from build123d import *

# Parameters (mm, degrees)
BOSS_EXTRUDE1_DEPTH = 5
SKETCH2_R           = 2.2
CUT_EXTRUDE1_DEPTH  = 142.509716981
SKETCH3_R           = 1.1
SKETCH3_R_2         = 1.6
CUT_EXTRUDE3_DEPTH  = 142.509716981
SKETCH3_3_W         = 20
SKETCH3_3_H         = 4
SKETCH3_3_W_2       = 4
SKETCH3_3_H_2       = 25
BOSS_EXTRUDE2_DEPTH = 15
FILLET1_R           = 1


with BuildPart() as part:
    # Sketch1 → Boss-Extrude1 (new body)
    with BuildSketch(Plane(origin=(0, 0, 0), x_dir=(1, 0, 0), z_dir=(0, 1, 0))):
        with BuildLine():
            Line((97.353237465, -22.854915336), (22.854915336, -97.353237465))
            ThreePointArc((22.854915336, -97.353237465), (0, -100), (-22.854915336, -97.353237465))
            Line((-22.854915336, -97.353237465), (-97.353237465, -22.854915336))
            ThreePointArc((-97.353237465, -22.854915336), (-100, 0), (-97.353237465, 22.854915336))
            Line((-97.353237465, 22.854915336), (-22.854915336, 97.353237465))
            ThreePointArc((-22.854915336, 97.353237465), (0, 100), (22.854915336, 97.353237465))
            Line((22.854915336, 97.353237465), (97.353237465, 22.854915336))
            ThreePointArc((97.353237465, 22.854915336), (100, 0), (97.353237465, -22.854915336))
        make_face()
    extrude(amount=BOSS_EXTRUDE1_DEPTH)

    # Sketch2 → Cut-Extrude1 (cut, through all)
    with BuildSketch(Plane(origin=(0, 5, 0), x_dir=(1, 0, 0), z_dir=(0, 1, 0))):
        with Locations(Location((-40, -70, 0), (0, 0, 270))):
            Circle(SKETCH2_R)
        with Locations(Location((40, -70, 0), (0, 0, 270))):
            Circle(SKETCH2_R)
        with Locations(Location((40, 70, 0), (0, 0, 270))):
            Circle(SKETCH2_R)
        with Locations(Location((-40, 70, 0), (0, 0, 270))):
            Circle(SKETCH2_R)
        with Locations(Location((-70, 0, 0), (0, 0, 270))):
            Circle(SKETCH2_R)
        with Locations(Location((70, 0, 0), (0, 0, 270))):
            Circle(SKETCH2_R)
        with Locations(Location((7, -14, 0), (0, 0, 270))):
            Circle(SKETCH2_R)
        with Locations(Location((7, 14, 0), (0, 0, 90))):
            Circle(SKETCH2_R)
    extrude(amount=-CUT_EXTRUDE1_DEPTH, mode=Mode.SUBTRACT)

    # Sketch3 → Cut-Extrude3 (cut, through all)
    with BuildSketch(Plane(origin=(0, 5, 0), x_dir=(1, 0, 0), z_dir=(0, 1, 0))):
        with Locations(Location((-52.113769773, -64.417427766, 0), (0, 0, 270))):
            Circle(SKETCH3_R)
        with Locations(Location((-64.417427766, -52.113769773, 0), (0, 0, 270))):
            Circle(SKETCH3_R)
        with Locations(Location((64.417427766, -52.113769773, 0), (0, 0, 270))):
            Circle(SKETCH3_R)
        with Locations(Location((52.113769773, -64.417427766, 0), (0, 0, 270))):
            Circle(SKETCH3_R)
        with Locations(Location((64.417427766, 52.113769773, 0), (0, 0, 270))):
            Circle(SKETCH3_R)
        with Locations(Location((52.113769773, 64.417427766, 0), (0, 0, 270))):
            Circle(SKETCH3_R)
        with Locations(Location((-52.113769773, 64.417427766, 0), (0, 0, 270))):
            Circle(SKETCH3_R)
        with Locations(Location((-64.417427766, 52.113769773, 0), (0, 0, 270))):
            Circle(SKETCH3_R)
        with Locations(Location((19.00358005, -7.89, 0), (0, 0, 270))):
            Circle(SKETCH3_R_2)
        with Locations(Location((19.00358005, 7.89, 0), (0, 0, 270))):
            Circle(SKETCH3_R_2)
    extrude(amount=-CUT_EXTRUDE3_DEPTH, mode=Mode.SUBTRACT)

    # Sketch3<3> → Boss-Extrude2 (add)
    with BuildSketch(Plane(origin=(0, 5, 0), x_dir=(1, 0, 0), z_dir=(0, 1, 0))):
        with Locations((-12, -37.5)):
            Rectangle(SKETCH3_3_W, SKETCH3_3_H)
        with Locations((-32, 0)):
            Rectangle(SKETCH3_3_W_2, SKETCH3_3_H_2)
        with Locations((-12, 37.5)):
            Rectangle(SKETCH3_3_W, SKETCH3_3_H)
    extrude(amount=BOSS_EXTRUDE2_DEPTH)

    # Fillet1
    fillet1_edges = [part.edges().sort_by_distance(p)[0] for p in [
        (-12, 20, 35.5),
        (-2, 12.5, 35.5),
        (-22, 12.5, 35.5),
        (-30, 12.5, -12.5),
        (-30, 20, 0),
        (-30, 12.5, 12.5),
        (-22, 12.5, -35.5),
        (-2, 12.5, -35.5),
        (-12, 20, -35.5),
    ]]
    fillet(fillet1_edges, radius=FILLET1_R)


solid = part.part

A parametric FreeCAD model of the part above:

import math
import FreeCAD as App
import Part
import Sketcher


def edges_at(feature, points):
    """Names of the edges that pass closest to the given points."""
    edges = feature.Shape.Edges
    near = lambda p: min(range(len(edges)), key=lambda i: edges[i].distToShape(Part.Vertex(*p))[0])
    return sorted({f"Edge{near(p) + 1}" for p in points})

doc = App.newDocument("Part")
body = doc.addObject("PartDesign::Body", "Body")

# Sketch on XZ plane
sketch1 = body.newObject("Sketcher::SketchObject", "Sketch")
sketch1.AttachmentSupport = (doc.getObject("XZ_Plane"), [""])
sketch1.MapMode = "FlatFace"
sketch1.addGeometry([
    Part.LineSegment(App.Vector(22.854915, 97.353237, 0), App.Vector(97.353237, 22.854915, 0)),  # 0
    Part.ArcOfCircle(Part.Circle(App.Vector(0, 0, 0), App.Vector(0, 0, 1), 100), math.radians(-13.211669), math.radians(13.211669)),  # 1
    Part.LineSegment(App.Vector(97.353237, -22.854915, 0), App.Vector(22.854915, -97.353237, 0)),  # 2
    Part.ArcOfCircle(Part.Circle(App.Vector(0, 0, 0), App.Vector(0, 0, 1), 100), math.radians(-103.211669), math.radians(-76.788331)),  # 3
    Part.LineSegment(App.Vector(-22.854915, -97.353237, 0), App.Vector(-97.353237, -22.854915, 0)),  # 4
    Part.ArcOfCircle(Part.Circle(App.Vector(0, 0, 0), App.Vector(0, 0, 1), 100), math.radians(166.788331), math.radians(193.211669)),  # 5
    Part.LineSegment(App.Vector(-97.353237, 22.854915, 0), App.Vector(-22.854915, 97.353237, 0)),  # 6
    Part.ArcOfCircle(Part.Circle(App.Vector(0, 0, 0), App.Vector(0, 0, 1), 100), math.radians(76.788331), math.radians(103.211669)),  # 7
], False)
sketch1.addConstraint([
    Sketcher.Constraint("Coincident", 0, 2, 1, 2),
    Sketcher.Constraint("Coincident", 1, 1, 2, 1),
    Sketcher.Constraint("Coincident", 2, 2, 3, 2),
    Sketcher.Constraint("Coincident", 3, 1, 4, 1),
    Sketcher.Constraint("Coincident", 4, 2, 5, 2),
    Sketcher.Constraint("Coincident", 5, 1, 6, 1),
    Sketcher.Constraint("Coincident", 6, 2, 7, 2),
    Sketcher.Constraint("Coincident", 7, 1, 0, 1),
    Sketcher.Constraint("Coincident", 1, 3, -1, 1),
    Sketcher.Constraint("Coincident", 3, 3, -1, 1),
    Sketcher.Constraint("Coincident", 5, 3, -1, 1),
    Sketcher.Constraint("Coincident", 7, 3, -1, 1),
    Sketcher.Constraint("Equal", 1, 3),
    Sketcher.Constraint("Equal", 3, 5),
    Sketcher.Constraint("Equal", 5, 7),
    Sketcher.Constraint("Perpendicular", 0, 2),
    Sketcher.Constraint("Perpendicular", 2, 4),
    Sketcher.Constraint("Perpendicular", 4, 6),
    Sketcher.Constraint("Horizontal", 2, 2, 3, 1),
    Sketcher.Constraint("Horizontal", 1, 1, 4, 2),
    Sketcher.Constraint("Horizontal", 0, 2, 5, 1),
    Sketcher.Constraint("Vertical", 0, 2, 1, 1),
    Sketcher.Constraint("Radius", 1, 100.0),
    Sketcher.Constraint("DistanceY", 1, 1, 0, 2, 45.709831),
])
pad1 = body.newObject("PartDesign::Pad", "Pad")
pad1.Profile = sketch1
pad1.Length = 5
pad1.Reversed = True

# Sketch on XZ plane
sketch2 = body.newObject("Sketcher::SketchObject", "Sketch001")
sketch2.AttachmentSupport = (doc.getObject("XZ_Plane"), [""])
sketch2.MapMode = "FlatFace"
sketch2.AttachmentOffset = App.Placement(App.Vector(0, 0, -5), App.Rotation())
sketch2.addGeometry([
    Part.Circle(App.Vector(-40, 70, 0), App.Vector(0, 0, 1), 2.2),  # 0
    Part.Circle(App.Vector(40, 70, 0), App.Vector(0, 0, 1), 2.2),  # 1
    Part.Circle(App.Vector(40, -70, 0), App.Vector(0, 0, 1), 2.2),  # 2
    Part.Circle(App.Vector(-40, -70, 0), App.Vector(0, 0, 1), 2.2),  # 3
    Part.Circle(App.Vector(-70, 0, 0), App.Vector(0, 0, 1), 2.2),  # 4
    Part.Circle(App.Vector(70, 0, 0), App.Vector(0, 0, 1), 2.2),  # 5
    Part.Circle(App.Vector(7, 14, 0), App.Vector(0, 0, 1), 2.2),  # 6
    Part.Circle(App.Vector(7, -14, 0), App.Vector(0, 0, 1), 2.2),  # 7
], False)
sketch2.addConstraint([
    Sketcher.Constraint("Equal", 0, 1),
    Sketcher.Constraint("Equal", 1, 2),
    Sketcher.Constraint("Equal", 2, 3),
    Sketcher.Constraint("Equal", 3, 4),
    Sketcher.Constraint("Equal", 4, 5),
    Sketcher.Constraint("Equal", 5, 6),
    Sketcher.Constraint("Equal", 6, 7),
    Sketcher.Constraint("Symmetric", 0, 3, 2, 3, -1, 1),
    Sketcher.Constraint("Symmetric", 1, 3, 3, 3, -1, 1),
    Sketcher.Constraint("Symmetric", 4, 3, 5, 3, -1, 1),
    Sketcher.Constraint("Symmetric", 0, 3, 1, 3, -2),
    Sketcher.Constraint("Symmetric", 6, 3, 7, 3, -1),
    Sketcher.Constraint("PointOnObject", 4, 3, -1),
    Sketcher.Constraint("Diameter", 0, 4.4),
    Sketcher.Constraint("DistanceX", 0, 3, -1, 1, 40.0),
    Sketcher.Constraint("DistanceY", -1, 1, 0, 3, 70.0),
    Sketcher.Constraint("DistanceX", 4, 3, -1, 1, 70.0),
    Sketcher.Constraint("DistanceX", -1, 1, 6, 3, 7.0),
    Sketcher.Constraint("DistanceY", -1, 1, 6, 3, 14.0),
])
pocket1 = body.newObject("PartDesign::Pocket", "Pocket")
pocket1.Profile = sketch2
pocket1.Type = "ThroughAll"
pocket1.Reversed = True

# Sketch on XZ plane
sketch3 = body.newObject("Sketcher::SketchObject", "Sketch002")
sketch3.AttachmentSupport = (doc.getObject("XZ_Plane"), [""])
sketch3.MapMode = "FlatFace"
sketch3.AttachmentOffset = App.Placement(App.Vector(0, 0, -5), App.Rotation())
sketch3.addGeometry([
    Part.Circle(App.Vector(-52.11377, 64.417428, 0), App.Vector(0, 0, 1), 1.1),  # 0
    Part.Circle(App.Vector(-64.417428, 52.11377, 0), App.Vector(0, 0, 1), 1.1),  # 1
    Part.Circle(App.Vector(64.417428, 52.11377, 0), App.Vector(0, 0, 1), 1.1),  # 2
    Part.Circle(App.Vector(52.11377, 64.417428, 0), App.Vector(0, 0, 1), 1.1),  # 3
    Part.Circle(App.Vector(64.417428, -52.11377, 0), App.Vector(0, 0, 1), 1.1),  # 4
    Part.Circle(App.Vector(52.11377, -64.417428, 0), App.Vector(0, 0, 1), 1.1),  # 5
    Part.Circle(App.Vector(-52.11377, -64.417428, 0), App.Vector(0, 0, 1), 1.1),  # 6
    Part.Circle(App.Vector(-64.417428, -52.11377, 0), App.Vector(0, 0, 1), 1.1),  # 7
    Part.Circle(App.Vector(19.00358, 7.89, 0), App.Vector(0, 0, 1), 1.6),  # 8
    Part.Circle(App.Vector(19.00358, -7.89, 0), App.Vector(0, 0, 1), 1.6),  # 9
], False)
sketch3.addConstraint([
    Sketcher.Constraint("Equal", 0, 1),
    Sketcher.Constraint("Equal", 1, 2),
    Sketcher.Constraint("Equal", 2, 3),
    Sketcher.Constraint("Equal", 3, 4),
    Sketcher.Constraint("Equal", 4, 5),
    Sketcher.Constraint("Equal", 5, 6),
    Sketcher.Constraint("Equal", 6, 7),
    Sketcher.Constraint("Equal", 8, 9),
    Sketcher.Constraint("Symmetric", 1, 3, 4, 3, -1, 1),
    Sketcher.Constraint("Symmetric", 0, 3, 5, 3, -1, 1),
    Sketcher.Constraint("Symmetric", 3, 3, 6, 3, -1, 1),
    Sketcher.Constraint("Symmetric", 2, 3, 7, 3, -1, 1),
    Sketcher.Constraint("Symmetric", 1, 3, 2, 3, -2),
    Sketcher.Constraint("Symmetric", 0, 3, 3, 3, -2),
    Sketcher.Constraint("Symmetric", 8, 3, 9, 3, -1),
    Sketcher.Constraint("Diameter", 0, 2.2),
    Sketcher.Constraint("Diameter", 8, 3.2),
    Sketcher.Constraint("DistanceY", -1, 1, 8, 3, 7.89),
    Sketcher.Constraint("DistanceX", 0, 3, -1, 1, 52.11377),
    Sketcher.Constraint("DistanceY", -1, 1, 1, 3, 52.11377),
    Sketcher.Constraint("DistanceX", -1, 1, 8, 3, 19.00358),
    Sketcher.Constraint("DistanceY", -1, 1, 0, 3, 64.417428),
    Sketcher.Constraint("DistanceX", 1, 3, -1, 1, 64.417428),
])
pocket2 = body.newObject("PartDesign::Pocket", "Pocket001")
pocket2.Profile = sketch3
pocket2.Type = "ThroughAll"
pocket2.Reversed = True

# Sketch on XZ plane
sketch4 = body.newObject("Sketcher::SketchObject", "Sketch003")
sketch4.AttachmentSupport = (doc.getObject("XZ_Plane"), [""])
sketch4.MapMode = "FlatFace"
sketch4.AttachmentOffset = App.Placement(App.Vector(0, 0, -5), App.Rotation())
sketch4.addGeometry([
    Part.LineSegment(App.Vector(-22, 35.5, 0), App.Vector(-22, 39.5, 0)),  # 0
    Part.LineSegment(App.Vector(-22, 39.5, 0), App.Vector(-2, 39.5, 0)),  # 1
    Part.LineSegment(App.Vector(-2, 39.5, 0), App.Vector(-2, 35.5, 0)),  # 2
    Part.LineSegment(App.Vector(-2, 35.5, 0), App.Vector(-22, 35.5, 0)),  # 3
    Part.LineSegment(App.Vector(-34, -12.5, 0), App.Vector(-34, 12.5, 0)),  # 4
    Part.LineSegment(App.Vector(-34, 12.5, 0), App.Vector(-30, 12.5, 0)),  # 5
    Part.LineSegment(App.Vector(-30, 12.5, 0), App.Vector(-30, -12.5, 0)),  # 6
    Part.LineSegment(App.Vector(-30, -12.5, 0), App.Vector(-34, -12.5, 0)),  # 7
    Part.LineSegment(App.Vector(-22, -39.5, 0), App.Vector(-22, -35.5, 0)),  # 8
    Part.LineSegment(App.Vector(-22, -35.5, 0), App.Vector(-2, -35.5, 0)),  # 9
    Part.LineSegment(App.Vector(-2, -35.5, 0), App.Vector(-2, -39.5, 0)),  # 10
    Part.LineSegment(App.Vector(-2, -39.5, 0), App.Vector(-22, -39.5, 0)),  # 11
], False)
sketch4.addConstraint([
    Sketcher.Constraint("Coincident", 0, 2, 1, 1),
    Sketcher.Constraint("Coincident", 1, 2, 2, 1),
    Sketcher.Constraint("Coincident", 2, 2, 3, 1),
    Sketcher.Constraint("Coincident", 3, 2, 0, 1),
    Sketcher.Constraint("Coincident", 4, 2, 5, 1),
    Sketcher.Constraint("Coincident", 5, 2, 6, 1),
    Sketcher.Constraint("Coincident", 6, 2, 7, 1),
    Sketcher.Constraint("Coincident", 7, 2, 4, 1),
    Sketcher.Constraint("Coincident", 8, 2, 9, 1),
    Sketcher.Constraint("Coincident", 9, 2, 10, 1),
    Sketcher.Constraint("Coincident", 10, 2, 11, 1),
    Sketcher.Constraint("Coincident", 11, 2, 8, 1),
    Sketcher.Constraint("Vertical", 0),
    Sketcher.Constraint("Horizontal", 1),
    Sketcher.Constraint("Vertical", 2),
    Sketcher.Constraint("Horizontal", 3),
    Sketcher.Constraint("Vertical", 4),
    Sketcher.Constraint("Horizontal", 5),
    Sketcher.Constraint("Vertical", 6),
    Sketcher.Constraint("Horizontal", 7),
    Sketcher.Constraint("Vertical", 8),
    Sketcher.Constraint("Horizontal", 9),
    Sketcher.Constraint("Vertical", 10),
    Sketcher.Constraint("Horizontal", 11),
    Sketcher.Constraint("Symmetric", 3, 2, 8, 2, -1),
    Sketcher.Constraint("Symmetric", 1, 2, 10, 2, -1),
    Sketcher.Constraint("Equal", 7, 0),
    Sketcher.Constraint("DistanceX", 1, 1, 1, 2, 20.0),
    Sketcher.Constraint("DistanceX", 5, 1, 5, 2, 4.0),
    Sketcher.Constraint("DistanceY", 4, 1, 4, 2, 25.0),
    Sketcher.Constraint("DistanceX", 0, 2, -1, 1, 22.0),
    Sketcher.Constraint("DistanceX", 4, 2, -1, 1, 34.0),
    Sketcher.Constraint("DistanceY", 4, 2, 3, 2, 23.0),
    Sketcher.Constraint("DistanceY", 8, 2, 6, 2, 23.0),
])
pad2 = body.newObject("PartDesign::Pad", "Pad001")
pad2.Profile = sketch4
pad2.Length = 15
pad2.Reversed = True
doc.recompute()

fillet = body.newObject("PartDesign::Fillet", "Fillet")
fillet.Base = (pad2, edges_at(pad2, [
    (-12, 20, 35.5),
    (-2, 12.5, 35.5),
    (-22, 12.5, 35.5),
    (-30, 12.5, -12.5),
    (-30, 20, 0),
    (-30, 12.5, 12.5),
    (-22, 12.5, -35.5),
    (-2, 12.5, -35.5),
    (-12, 20, -35.5),
]))
fillet.Radius = 1

doc.recompute()
